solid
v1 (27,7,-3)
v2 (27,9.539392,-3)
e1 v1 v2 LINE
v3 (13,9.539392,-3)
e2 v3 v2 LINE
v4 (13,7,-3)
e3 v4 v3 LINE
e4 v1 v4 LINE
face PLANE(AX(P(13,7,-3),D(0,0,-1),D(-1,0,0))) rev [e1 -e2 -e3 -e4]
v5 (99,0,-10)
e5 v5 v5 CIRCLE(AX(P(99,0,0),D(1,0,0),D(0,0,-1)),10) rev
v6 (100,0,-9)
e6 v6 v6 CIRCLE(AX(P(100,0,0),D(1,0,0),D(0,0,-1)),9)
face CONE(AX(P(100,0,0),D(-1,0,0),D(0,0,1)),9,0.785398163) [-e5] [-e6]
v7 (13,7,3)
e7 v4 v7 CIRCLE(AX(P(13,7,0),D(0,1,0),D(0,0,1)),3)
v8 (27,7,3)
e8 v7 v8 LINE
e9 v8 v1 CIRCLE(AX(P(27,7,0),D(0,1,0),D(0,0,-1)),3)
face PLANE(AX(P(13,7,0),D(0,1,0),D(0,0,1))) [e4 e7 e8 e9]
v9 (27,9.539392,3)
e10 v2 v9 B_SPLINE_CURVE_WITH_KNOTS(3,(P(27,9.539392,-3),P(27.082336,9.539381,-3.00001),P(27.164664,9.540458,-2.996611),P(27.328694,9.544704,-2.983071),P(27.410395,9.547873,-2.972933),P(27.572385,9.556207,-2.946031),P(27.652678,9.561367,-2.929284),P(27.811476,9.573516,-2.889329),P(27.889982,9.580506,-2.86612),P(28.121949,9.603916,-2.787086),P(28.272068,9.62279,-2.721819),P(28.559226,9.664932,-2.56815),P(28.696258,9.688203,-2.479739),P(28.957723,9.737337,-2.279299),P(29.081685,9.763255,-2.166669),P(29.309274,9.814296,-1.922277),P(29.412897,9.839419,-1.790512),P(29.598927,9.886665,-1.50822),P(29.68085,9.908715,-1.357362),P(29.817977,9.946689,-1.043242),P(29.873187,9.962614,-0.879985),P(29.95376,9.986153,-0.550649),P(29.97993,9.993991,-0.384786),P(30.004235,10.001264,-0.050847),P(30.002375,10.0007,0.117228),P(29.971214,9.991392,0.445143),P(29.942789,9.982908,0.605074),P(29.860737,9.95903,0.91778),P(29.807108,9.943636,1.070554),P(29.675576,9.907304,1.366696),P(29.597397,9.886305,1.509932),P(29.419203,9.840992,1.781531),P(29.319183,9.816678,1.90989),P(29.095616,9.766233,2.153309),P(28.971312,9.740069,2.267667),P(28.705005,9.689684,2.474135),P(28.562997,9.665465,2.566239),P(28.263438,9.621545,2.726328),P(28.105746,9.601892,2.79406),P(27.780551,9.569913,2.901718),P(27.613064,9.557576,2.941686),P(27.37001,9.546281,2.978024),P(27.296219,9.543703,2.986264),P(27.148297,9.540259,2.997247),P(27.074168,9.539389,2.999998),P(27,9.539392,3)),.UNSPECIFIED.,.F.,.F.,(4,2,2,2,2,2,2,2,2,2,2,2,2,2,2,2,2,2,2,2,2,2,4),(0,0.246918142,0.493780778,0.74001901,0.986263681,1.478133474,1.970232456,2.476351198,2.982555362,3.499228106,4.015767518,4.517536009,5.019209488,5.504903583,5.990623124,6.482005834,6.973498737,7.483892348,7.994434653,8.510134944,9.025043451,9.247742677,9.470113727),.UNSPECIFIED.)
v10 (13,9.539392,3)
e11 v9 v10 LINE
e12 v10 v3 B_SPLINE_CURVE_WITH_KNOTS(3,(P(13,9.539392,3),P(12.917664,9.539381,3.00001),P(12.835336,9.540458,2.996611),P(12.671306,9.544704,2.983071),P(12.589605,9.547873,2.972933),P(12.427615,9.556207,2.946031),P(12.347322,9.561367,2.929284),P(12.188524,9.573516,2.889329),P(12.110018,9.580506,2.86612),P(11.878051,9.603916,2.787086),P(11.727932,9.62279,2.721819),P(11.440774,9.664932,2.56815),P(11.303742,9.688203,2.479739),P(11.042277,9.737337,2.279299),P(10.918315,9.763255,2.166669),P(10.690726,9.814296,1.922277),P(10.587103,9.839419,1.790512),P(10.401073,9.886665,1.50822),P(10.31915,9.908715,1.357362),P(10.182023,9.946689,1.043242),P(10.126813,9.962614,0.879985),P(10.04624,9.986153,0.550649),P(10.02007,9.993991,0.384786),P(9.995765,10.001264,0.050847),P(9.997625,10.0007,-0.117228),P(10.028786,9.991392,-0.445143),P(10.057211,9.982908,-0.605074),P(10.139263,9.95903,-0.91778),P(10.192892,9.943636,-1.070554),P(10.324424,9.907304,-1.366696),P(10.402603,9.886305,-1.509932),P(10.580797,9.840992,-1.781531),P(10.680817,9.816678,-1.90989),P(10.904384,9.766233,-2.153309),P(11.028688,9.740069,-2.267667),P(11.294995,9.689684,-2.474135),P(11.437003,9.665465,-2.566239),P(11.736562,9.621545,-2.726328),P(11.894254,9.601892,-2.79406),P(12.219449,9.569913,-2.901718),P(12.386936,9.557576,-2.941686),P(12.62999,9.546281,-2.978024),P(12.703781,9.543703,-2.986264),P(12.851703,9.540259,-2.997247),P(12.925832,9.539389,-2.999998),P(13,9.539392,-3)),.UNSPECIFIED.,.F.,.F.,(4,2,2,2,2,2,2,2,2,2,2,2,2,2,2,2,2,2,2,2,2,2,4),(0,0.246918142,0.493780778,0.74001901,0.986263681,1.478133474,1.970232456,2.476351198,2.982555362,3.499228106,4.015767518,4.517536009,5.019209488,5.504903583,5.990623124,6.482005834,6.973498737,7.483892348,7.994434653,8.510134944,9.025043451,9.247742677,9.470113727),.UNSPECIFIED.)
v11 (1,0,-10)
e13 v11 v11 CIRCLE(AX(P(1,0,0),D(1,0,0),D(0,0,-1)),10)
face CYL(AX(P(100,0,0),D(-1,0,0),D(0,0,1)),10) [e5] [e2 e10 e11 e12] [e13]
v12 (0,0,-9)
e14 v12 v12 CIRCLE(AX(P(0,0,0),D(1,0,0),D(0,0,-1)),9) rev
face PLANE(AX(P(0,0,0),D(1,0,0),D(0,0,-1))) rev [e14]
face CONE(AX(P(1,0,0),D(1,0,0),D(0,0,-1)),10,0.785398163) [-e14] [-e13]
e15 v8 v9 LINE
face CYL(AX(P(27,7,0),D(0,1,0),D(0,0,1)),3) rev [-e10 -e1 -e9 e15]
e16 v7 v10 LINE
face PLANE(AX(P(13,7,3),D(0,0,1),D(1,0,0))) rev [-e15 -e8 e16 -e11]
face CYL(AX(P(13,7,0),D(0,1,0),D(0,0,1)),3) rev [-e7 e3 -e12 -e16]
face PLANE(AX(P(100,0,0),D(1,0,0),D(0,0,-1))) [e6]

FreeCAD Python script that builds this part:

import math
import FreeCAD as App
import Part
import Sketcher


def edges_at(feature, points):
    """Names of the edges that pass closest to the given points."""
    edges = feature.Shape.Edges
    near = lambda p: min(range(len(edges)), key=lambda i: edges[i].distToShape(Part.Vertex(*p))[0])
    return sorted({f"Edge{near(p) + 1}" for p in points})

doc = App.newDocument("Part")
body = doc.addObject("PartDesign::Body", "Body")

# Sketch on YZ plane
sketch1 = body.newObject("Sketcher::SketchObject", "Sketch")
sketch1.AttachmentSupport = (doc.getObject("YZ_Plane"), [""])
sketch1.MapMode = "FlatFace"
sketch1.addGeometry(Part.Circle(App.Vector(0, 0, 0), App.Vector(0, 0, 1), 10), False)
sketch1.addConstraint([
    Sketcher.Constraint("Coincident", 0, 3, -1, 1),
    Sketcher.Constraint("Diameter", 0, 20.0),
])
pad1 = body.newObject("PartDesign::Pad", "Pad")
pad1.Profile = sketch1
pad1.Length = 100

# Sketch on XZ plane
sketch2 = body.newObject("Sketcher::SketchObject", "Sketch001")
sketch2.AttachmentSupport = (doc.getObject("XZ_Plane"), [""])
sketch2.MapMode = "FlatFace"
sketch2.AttachmentOffset = App.Placement(App.Vector(0, 0, -10), App.Rotation())
sketch2.addGeometry([
    Part.LineSegment(App.Vector(27, -3, 0), App.Vector(13, -3, 0)),
    Part.ArcOfCircle(Part.Circle(App.Vector(13, 0, 0), App.Vector(0, 0, 1), 3), math.radians(90), math.radians(270)),
    Part.LineSegment(App.Vector(13, 3, 0), App.Vector(27, 3, 0)),
    Part.ArcOfCircle(Part.Circle(App.Vector(27, 0, 0), App.Vector(0, 0, 1), 3), math.radians(-90), math.radians(90)),
], False)
sketch2.addConstraint([
    Sketcher.Constraint("Tangent", 0, 2, 1, 2),
    Sketcher.Constraint("Tangent", 1, 1, 2, 1),
    Sketcher.Constraint("Tangent", 2, 2, 3, 2),
    Sketcher.Constraint("Tangent", 3, 1, 0, 1),
    Sketcher.Constraint("Horizontal", 0),
    Sketcher.Constraint("Horizontal", 2),
    Sketcher.Constraint("PointOnObject", 1, 3, -1),
    Sketcher.Constraint("Radius", 1, 3.0),
    Sketcher.Constraint("DistanceX", 0, 2, 0, 1, 14.0),
    Sketcher.Constraint("DistanceX", -1, 1, 1, 3, 13.0),
])
pocket1 = body.newObject("PartDesign::Pocket", "Pocket")
pocket1.Profile = sketch2
pocket1.Length = 3
pocket1.Reversed = True
doc.recompute()

chamfer = body.newObject("PartDesign::Chamfer", "Chamfer")
chamfer.Base = (pocket1, edges_at(pocket1, [(0, 0, 10)]))
chamfer.Size = 1
doc.recompute()

chamfer2 = body.newObject("PartDesign::Chamfer", "Chamfer001")
chamfer2.Base = (chamfer, edges_at(chamfer, [(100, 0, 10)]))
chamfer2.Size = 1

doc.recompute()
